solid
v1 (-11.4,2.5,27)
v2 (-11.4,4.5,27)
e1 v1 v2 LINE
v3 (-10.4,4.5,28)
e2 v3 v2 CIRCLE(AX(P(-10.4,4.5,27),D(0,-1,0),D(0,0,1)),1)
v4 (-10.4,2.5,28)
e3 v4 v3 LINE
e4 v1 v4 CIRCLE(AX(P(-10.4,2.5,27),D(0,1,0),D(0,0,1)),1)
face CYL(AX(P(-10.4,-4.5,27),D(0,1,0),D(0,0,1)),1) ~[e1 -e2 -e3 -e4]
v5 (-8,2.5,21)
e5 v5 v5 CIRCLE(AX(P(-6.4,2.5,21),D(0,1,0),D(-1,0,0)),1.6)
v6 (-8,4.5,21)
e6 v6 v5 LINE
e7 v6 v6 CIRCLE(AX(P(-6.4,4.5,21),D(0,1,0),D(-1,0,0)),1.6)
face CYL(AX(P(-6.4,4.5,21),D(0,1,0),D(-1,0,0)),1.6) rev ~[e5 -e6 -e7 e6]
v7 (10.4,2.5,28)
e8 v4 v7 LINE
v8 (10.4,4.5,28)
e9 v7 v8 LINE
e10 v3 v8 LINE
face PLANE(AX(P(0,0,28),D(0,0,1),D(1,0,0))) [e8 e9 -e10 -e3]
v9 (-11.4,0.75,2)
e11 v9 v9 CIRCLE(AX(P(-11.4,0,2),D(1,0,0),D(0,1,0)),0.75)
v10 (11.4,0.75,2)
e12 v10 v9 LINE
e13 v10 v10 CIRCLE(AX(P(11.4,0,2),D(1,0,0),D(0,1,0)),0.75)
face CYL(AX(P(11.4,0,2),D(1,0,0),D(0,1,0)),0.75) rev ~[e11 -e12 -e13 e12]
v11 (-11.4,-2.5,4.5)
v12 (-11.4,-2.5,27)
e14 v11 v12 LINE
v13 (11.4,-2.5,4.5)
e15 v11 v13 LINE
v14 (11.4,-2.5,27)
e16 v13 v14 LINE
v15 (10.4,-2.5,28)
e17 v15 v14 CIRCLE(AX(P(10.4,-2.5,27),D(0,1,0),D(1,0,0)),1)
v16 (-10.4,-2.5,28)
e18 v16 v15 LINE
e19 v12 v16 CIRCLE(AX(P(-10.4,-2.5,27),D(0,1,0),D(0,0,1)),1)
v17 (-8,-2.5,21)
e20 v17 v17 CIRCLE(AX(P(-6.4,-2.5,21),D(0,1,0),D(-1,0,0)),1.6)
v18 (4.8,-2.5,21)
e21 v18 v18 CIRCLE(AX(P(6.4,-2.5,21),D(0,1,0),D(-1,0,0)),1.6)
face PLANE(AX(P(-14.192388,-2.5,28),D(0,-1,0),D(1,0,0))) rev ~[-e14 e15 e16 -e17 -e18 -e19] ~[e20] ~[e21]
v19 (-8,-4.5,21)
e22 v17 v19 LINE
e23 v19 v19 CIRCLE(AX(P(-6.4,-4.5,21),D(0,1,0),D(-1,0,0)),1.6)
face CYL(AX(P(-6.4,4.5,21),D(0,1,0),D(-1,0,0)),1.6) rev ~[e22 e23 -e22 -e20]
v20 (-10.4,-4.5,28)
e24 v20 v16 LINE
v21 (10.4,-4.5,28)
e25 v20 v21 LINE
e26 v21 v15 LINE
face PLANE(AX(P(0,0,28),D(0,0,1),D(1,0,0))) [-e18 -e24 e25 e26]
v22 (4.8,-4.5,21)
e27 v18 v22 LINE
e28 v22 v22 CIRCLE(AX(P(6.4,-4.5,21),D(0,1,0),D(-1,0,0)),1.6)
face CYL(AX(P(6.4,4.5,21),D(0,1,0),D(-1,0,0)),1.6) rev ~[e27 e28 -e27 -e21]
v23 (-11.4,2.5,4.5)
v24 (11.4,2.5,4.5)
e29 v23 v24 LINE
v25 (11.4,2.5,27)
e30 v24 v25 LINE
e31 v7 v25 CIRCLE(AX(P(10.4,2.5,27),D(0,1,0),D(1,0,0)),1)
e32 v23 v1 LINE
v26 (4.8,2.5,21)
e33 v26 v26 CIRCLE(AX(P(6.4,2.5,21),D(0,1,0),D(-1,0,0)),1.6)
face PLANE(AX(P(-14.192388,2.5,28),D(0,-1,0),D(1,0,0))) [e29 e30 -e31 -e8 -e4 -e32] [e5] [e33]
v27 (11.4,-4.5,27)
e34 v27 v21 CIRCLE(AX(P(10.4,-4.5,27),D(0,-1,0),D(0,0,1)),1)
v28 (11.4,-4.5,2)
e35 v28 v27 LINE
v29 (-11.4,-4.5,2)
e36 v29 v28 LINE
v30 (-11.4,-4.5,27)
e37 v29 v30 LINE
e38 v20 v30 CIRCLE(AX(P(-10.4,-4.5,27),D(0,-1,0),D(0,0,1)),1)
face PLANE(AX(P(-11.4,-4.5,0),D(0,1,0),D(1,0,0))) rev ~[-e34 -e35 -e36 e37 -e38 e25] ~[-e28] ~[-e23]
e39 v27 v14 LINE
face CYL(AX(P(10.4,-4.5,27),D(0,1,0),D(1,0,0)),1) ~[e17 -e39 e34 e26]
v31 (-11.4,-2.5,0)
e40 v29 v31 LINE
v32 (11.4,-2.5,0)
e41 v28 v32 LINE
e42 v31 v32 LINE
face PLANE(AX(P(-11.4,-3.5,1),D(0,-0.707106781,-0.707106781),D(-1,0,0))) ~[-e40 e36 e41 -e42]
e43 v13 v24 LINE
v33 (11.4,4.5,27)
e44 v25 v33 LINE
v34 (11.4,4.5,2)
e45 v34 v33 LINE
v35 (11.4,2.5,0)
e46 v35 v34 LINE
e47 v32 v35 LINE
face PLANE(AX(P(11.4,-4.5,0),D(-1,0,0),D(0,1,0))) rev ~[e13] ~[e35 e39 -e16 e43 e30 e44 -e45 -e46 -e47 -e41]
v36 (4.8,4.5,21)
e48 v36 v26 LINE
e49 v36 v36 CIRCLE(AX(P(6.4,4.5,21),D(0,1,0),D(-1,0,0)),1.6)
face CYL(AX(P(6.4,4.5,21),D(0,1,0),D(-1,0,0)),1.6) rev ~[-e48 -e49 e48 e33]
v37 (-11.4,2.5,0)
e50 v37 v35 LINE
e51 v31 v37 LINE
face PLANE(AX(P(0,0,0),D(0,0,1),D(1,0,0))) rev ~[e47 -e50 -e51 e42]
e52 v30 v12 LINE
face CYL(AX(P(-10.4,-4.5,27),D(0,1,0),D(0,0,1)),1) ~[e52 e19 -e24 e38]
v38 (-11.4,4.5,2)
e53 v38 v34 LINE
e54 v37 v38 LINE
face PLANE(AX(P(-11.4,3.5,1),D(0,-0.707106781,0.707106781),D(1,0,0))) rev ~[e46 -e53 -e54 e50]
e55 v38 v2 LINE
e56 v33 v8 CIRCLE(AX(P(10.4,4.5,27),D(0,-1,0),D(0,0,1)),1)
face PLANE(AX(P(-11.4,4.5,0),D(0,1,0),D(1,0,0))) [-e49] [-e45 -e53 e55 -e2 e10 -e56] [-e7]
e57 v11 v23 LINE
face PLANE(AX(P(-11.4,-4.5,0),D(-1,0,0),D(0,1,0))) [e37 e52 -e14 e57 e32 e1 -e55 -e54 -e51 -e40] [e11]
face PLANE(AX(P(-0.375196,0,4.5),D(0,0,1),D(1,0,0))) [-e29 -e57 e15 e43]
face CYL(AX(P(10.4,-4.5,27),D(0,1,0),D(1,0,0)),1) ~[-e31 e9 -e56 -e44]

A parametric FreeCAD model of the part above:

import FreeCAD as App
import Part
import Sketcher

V = App.Vector
Q = App.Units.Quantity


def edges_at(feature, points):
    """Names of the edges that pass closest to the given points."""
    edges = feature.Shape.Edges
    near = lambda p: min(range(len(edges)), key=lambda i: edges[i].distToShape(Part.Vertex(*p))[0])
    return sorted({f"Edge{near(p) + 1}" for p in points})

doc = App.newDocument("Part")
body = doc.addObject("PartDesign::Body", "Body")

# Sketch on XY plane
sketch1 = doc.addObject("Sketcher::SketchObject", "Sketch")
body.addObject(sketch1)
sketch1.AttachmentSupport = (doc.XY_Plane, [""])
sketch1.MapMode = "FlatFace"
sketch1.addGeometry([
    Part.LineSegment(V(-11, 4, 0), V(-11, -4, 0)),
    Part.LineSegment(V(-11, -4, 0), V(11, -4, 0)),
    Part.LineSegment(V(11, -4, 0), V(11, 4, 0)),
    Part.LineSegment(V(11, 4, 0), V(-11, 4, 0)),
], False)
sketch1.addConstraint([
    Sketcher.Constraint("Coincident", 0, 2, 1, 1),
    Sketcher.Constraint("Coincident", 1, 2, 2, 1),
    Sketcher.Constraint("Coincident", 2, 2, 3, 1),
    Sketcher.Constraint("Coincident", 3, 2, 0, 1),
    Sketcher.Constraint("Vertical", 0),
    Sketcher.Constraint("Horizontal", 1),
    Sketcher.Constraint("Vertical", 2),
    Sketcher.Constraint("Horizontal", 3),
    Sketcher.Constraint("Symmetric", 0, 2, 2, 2, -1, 1),
    Sketcher.Constraint("DistanceY", 0, 2, 0, 1, Q("9 mm")),
    Sketcher.Constraint("DistanceX", 1, 1, 1, 2, Q("22.8 mm")),
])
pad1 = doc.addObject("PartDesign::Pad", "Pad")
body.addObject(pad1)
pad1.Profile = sketch1
pad1.Length = 28
doc.recompute()

fillet = doc.addObject("PartDesign::Fillet", "Fillet")
body.addObject(fillet)
fillet.Base = (pad1, edges_at(pad1, [(11.4, 0, 28)]))
fillet.Radius = 1
doc.recompute()

fillet2 = doc.addObject("PartDesign::Fillet", "Fillet001")
body.addObject(fillet2)
fillet2.Base = (fillet, edges_at(fillet, [(-11.4, 0, 28)]))
fillet2.Radius = 1

# Sketch on XY plane
sketch2 = doc.addObject("Sketcher::SketchObject", "Sketch001")
body.addObject(sketch2)
sketch2.AttachmentSupport = (doc.XY_Plane, [""])
sketch2.MapMode = "FlatFace"
sketch2.AttachmentOffset = App.Placement(V(0, 0, 28), App.Rotation())
sketch2.addGeometry([
    Part.LineSegment(V(-14, 2, 0), V(-14, -2, 0)),
    Part.LineSegment(V(-14, -2, 0), V(13, -2, 0)),
    Part.LineSegment(V(13, -2, 0), V(13, 2, 0)),
    Part.LineSegment(V(13, 2, 0), V(-14, 2, 0)),
], False)
sketch2.addConstraint([
    Sketcher.Constraint("Coincident", 0, 2, 1, 1),
    Sketcher.Constraint("Coincident", 1, 2, 2, 1),
    Sketcher.Constraint("Coincident", 2, 2, 3, 1),
    Sketcher.Constraint("Coincident", 3, 2, 0, 1),
    Sketcher.Constraint("Vertical", 0),
    Sketcher.Constraint("Horizontal", 1),
    Sketcher.Constraint("Vertical", 2),
    Sketcher.Constraint("Horizontal", 3),
    Sketcher.Constraint("DistanceY", 0, 2, 0, 1, Q("5 mm")),
    Sketcher.Constraint("DistanceY", 0, 2, -1, 1, Q("2.5 mm")),
    Sketcher.Constraint("DistanceX", 1, 1, 1, 2, Q("27.634385 mm")),
    Sketcher.Constraint("DistanceX", 0, 2, -1, 1, Q("14.192388 mm")),
])
pocket1 = doc.addObject("PartDesign::Pocket", "Pocket")
body.addObject(pocket1)
pocket1.Profile = sketch2
pocket1.Length = 23.5

# Sketch on YZ plane
sketch3 = doc.addObject("Sketcher::SketchObject", "Sketch002")
body.addObject(sketch3)
sketch3.AttachmentSupport = (doc.YZ_Plane, [""])
sketch3.MapMode = "FlatFace"
sketch3.AttachmentOffset = App.Placement(V(0, 0, 11.4), App.Rotation())
sketch3.addGeometry(Part.Circle(V(0, 2, 0), V(0, 0, 1), 0.8), False)
sketch3.addConstraint([
    Sketcher.Constraint("PointOnObject", 0, 3, -2),
    Sketcher.Constraint("Diameter", 0, Q("1.5 mm")),
    Sketcher.Constraint("DistanceY", -1, 1, 0, 3, Q("2 mm")),
])
pocket2 = doc.addObject("PartDesign::Pocket", "Pocket001")
body.addObject(pocket2)
pocket2.Profile = sketch3
pocket2.Length = 30

# Sketch on XZ plane
sketch4 = doc.addObject("Sketcher::SketchObject", "Sketch003")
body.addObject(sketch4)
sketch4.AttachmentSupport = (doc.XZ_Plane, [""])
sketch4.MapMode = "FlatFace"
sketch4.AttachmentOffset = App.Placement(V(0, 0, -4.5), App.Rotation())
sketch4.addGeometry([
    Part.Circle(V(6.4, 21, 0), V(0, 0, 1), 1.6),
    Part.Circle(V(-6.4, 21, 0), V(0, 0, 1), 1.6),
], False)
sketch4.addConstraint([
    Sketcher.Constraint("Equal", 0, 1),
    Sketcher.Constraint("Symmetric", 0, 3, 1, 3, -2),
    Sketcher.Constraint("Diameter", 0, Q("3.2 mm")),
    Sketcher.Constraint("DistanceY", -1, 1, 0, 3, Q("21 mm")),
    Sketcher.Constraint("DistanceX", -1, 1, 0, 3, Q("6.4 mm")),
])
pocket3 = doc.addObject("PartDesign::Pocket", "Pocket002")
body.addObject(pocket3)
pocket3.Profile = sketch4
pocket3.Length = 20
pocket3.Reversed = True
doc.recompute()

chamfer = doc.addObject("PartDesign::Chamfer", "Chamfer")
body.addObject(chamfer)
chamfer.Base = (pocket3, edges_at(pocket3, [(0, -4.5, 0)]))
chamfer.Size = 2
doc.recompute()

chamfer2 = doc.addObject("PartDesign::Chamfer", "Chamfer001")
body.addObject(chamfer2)
chamfer2.Base = (chamfer, edges_at(chamfer, [(0, 4.5, 0)]))
chamfer2.Size = 2

doc.recompute()
